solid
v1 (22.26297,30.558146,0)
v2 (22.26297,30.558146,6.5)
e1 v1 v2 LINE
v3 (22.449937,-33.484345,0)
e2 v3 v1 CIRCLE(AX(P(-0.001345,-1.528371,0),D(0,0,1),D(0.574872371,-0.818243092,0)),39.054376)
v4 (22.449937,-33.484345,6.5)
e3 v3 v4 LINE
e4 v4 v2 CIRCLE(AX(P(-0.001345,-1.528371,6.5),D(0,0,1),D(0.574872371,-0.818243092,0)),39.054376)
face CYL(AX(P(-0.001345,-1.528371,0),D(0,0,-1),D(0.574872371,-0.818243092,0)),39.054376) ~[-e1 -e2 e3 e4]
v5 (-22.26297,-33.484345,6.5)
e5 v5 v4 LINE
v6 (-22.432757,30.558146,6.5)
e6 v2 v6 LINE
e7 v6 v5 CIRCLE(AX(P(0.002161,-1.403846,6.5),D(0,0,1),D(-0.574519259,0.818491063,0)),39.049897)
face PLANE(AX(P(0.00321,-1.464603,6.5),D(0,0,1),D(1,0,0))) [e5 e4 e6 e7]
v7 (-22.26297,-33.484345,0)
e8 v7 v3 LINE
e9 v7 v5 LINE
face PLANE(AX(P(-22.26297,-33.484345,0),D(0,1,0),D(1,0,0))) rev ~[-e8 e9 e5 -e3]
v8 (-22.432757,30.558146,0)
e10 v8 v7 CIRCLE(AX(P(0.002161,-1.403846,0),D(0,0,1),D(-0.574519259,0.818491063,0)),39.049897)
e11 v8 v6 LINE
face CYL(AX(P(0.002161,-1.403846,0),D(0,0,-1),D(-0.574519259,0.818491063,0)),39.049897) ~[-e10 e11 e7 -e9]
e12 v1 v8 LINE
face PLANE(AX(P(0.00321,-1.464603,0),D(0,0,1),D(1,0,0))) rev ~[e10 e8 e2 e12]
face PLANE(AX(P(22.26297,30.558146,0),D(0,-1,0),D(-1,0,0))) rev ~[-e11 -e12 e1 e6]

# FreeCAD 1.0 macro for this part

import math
import FreeCAD as App
import Part
import Sketcher
Q = App.Units.Quantity

doc = App.newDocument("Part")
body = doc.addObject("PartDesign::Body", "Body")

sketch1 = body.newObject("Sketcher::SketchObject", "Sketch")
sketch1.AttachmentSupport = (doc.getObject("XY_Plane"), [""])
sketch1.MapMode = "FlatFace"
sketch1.addGeometry([
    Part.ArcOfCircle(Part.Circle(App.Vector(0, -2, 0), App.Vector(0, 0, 1), 39), math.radians(-55), math.radians(55)),
    Part.LineSegment(App.Vector(22, 31, 0), App.Vector(-22, 31, 0)),
    Part.ArcOfCircle(Part.Circle(App.Vector(0, -1, 0), App.Vector(0, 0, 1), 39), math.radians(125), math.radians(235)),
    Part.LineSegment(App.Vector(-22, -33, 0), App.Vector(22, -33, 0)),
], False)
sketch1.addConstraint([
    Sketcher.Constraint("Coincident", 0, 2, 1, 1),
    Sketcher.Constraint("Coincident", 1, 2, 2, 1),
    Sketcher.Constraint("Coincident", 2, 2, 3, 1),
    Sketcher.Constraint("Coincident", 3, 2, 0, 1),
    Sketcher.Constraint("Horizontal", 1),
    Sketcher.Constraint("Horizontal", 3),
    Sketcher.Constraint("Radius", 0, Q("39.054376 mm")),
    Sketcher.Constraint("Radius", 2, Q("39.049897 mm")),
    Sketcher.Constraint("DistanceY", 2, 2, 2, 3, Q("32.080499 mm")),
    Sketcher.Constraint("DistanceX", 1, 2, 1, 1, Q("44.695727 mm")),
    Sketcher.Constraint("DistanceX", 3, 1, 3, 2, Q("44.712907 mm")),
    Sketcher.Constraint("DistanceY", 0, 3, -1, 1, Q("1.528371 mm")),
    Sketcher.Constraint("DistanceX", -1, 1, 2, 3, Q("0.002161 mm")),
    Sketcher.Constraint("DistanceX", -1, 1, 0, 2, Q("22.26297 mm")),
])
pad1 = body.newObject("PartDesign::Pad", "Pad")
pad1.Profile = sketch1
pad1.Length = 6.5

doc.recompute()
